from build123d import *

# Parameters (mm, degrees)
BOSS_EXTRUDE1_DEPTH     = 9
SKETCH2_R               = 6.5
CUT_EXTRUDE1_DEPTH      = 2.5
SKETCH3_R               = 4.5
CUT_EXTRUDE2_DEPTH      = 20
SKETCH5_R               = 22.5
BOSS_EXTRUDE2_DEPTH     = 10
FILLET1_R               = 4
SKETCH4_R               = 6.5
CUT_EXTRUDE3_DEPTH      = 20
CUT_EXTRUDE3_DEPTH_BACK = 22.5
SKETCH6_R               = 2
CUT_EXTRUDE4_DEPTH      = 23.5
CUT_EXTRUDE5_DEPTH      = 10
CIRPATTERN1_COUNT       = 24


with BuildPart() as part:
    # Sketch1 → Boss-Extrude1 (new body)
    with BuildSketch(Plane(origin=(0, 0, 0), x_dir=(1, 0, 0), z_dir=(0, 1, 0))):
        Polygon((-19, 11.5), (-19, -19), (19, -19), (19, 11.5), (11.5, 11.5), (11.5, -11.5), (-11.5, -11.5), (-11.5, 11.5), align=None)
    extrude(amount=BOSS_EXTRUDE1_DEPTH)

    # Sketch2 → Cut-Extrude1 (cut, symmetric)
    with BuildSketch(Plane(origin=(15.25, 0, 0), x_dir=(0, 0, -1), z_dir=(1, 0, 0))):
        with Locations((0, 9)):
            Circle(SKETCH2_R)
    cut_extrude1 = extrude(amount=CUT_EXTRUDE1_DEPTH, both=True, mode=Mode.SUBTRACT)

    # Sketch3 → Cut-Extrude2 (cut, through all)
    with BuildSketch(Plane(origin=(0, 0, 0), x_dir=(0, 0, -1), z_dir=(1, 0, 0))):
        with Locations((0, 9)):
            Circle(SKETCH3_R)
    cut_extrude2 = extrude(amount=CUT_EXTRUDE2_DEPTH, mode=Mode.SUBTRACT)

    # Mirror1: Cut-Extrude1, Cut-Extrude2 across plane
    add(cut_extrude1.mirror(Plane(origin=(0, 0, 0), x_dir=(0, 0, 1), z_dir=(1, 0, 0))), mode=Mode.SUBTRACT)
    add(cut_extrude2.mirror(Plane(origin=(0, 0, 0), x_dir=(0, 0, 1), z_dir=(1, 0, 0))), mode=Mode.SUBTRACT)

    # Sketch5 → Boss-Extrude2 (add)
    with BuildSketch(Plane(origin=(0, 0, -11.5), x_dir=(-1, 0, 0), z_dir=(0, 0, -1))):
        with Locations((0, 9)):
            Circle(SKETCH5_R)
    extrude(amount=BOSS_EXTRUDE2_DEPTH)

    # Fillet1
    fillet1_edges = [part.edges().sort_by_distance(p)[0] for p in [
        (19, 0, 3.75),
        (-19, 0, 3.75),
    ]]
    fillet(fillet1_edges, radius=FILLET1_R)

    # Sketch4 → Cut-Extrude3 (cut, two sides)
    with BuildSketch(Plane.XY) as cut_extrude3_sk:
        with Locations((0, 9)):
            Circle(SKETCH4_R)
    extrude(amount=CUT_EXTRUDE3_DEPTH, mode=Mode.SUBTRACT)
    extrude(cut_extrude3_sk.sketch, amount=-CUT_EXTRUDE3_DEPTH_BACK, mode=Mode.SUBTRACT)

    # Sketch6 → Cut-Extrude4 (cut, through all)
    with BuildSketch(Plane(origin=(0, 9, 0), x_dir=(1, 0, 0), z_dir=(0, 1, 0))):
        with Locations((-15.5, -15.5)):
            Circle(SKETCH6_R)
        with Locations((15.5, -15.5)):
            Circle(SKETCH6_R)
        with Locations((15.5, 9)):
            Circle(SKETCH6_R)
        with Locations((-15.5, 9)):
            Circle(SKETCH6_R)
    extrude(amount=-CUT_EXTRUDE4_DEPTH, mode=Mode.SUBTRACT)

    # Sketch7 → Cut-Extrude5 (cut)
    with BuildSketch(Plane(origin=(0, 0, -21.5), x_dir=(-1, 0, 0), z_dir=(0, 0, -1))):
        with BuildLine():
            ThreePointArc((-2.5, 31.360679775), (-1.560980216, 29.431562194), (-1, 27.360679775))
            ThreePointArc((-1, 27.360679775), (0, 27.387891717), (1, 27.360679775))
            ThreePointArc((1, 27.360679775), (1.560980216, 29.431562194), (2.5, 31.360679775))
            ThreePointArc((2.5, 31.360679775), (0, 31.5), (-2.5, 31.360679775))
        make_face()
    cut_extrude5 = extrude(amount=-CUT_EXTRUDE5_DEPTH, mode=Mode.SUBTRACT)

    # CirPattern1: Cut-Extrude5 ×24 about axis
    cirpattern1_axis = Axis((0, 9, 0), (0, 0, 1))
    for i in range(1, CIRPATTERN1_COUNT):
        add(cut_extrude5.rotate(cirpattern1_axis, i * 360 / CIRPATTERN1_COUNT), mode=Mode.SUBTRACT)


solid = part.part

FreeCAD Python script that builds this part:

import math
import FreeCAD as App
import Part
import Sketcher

V = App.Vector
Q = App.Units.Quantity


def edges_at(feature, points):
    """Names of the edges that pass closest to the given points."""
    edges = feature.Shape.Edges
    near = lambda p: min(range(len(edges)), key=lambda i: edges[i].distToShape(Part.Vertex(*p))[0])
    return sorted({f"Edge{near(p) + 1}" for p in points})

doc = App.newDocument("Part")
body = doc.addObject("PartDesign::Body", "Body")

# Sketch on XZ plane
sketch1 = body.newObject("Sketcher::SketchObject", "Sketch")
sketch1.AttachmentSupport = (doc.getObject("XZ_Plane"), [""])
sketch1.MapMode = "FlatFace"
sketch1.addGeometry([
    Part.LineSegment(V(-19, -12, 0), V(-19, 19, 0)),  # 0
    Part.LineSegment(V(-19, 19, 0), V(19, 19, 0)),  # 1
    Part.LineSegment(V(19, 19, 0), V(19, -12, 0)),  # 2
    Part.LineSegment(V(19, -12, 0), V(12, -12, 0)),  # 3
    Part.LineSegment(V(12, -12, 0), V(12, 12, 0)),  # 4
    Part.LineSegment(V(12, 12, 0), V(-12, 12, 0)),  # 5
    Part.LineSegment(V(-12, 12, 0), V(-12, -12, 0)),  # 6
    Part.LineSegment(V(-12, -12, 0), V(-19, -12, 0)),  # 7
], False)
sketch1.addConstraint([
    Sketcher.Constraint("Coincident", 0, 2, 1, 1),
    Sketcher.Constraint("Coincident", 1, 2, 2, 1),
    Sketcher.Constraint("Coincident", 2, 2, 3, 1),
    Sketcher.Constraint("Coincident", 3, 2, 4, 1),
    Sketcher.Constraint("Coincident", 4, 2, 5, 1),
    Sketcher.Constraint("Coincident", 5, 2, 6, 1),
    Sketcher.Constraint("Coincident", 6, 2, 7, 1),
    Sketcher.Constraint("Coincident", 7, 2, 0, 1),
    Sketcher.Constraint("Vertical", 0),
    Sketcher.Constraint("Horizontal", 1),
    Sketcher.Constraint("Vertical", 2),
    Sketcher.Constraint("Horizontal", 3),
    Sketcher.Constraint("Vertical", 4),
    Sketcher.Constraint("Horizontal", 5),
    Sketcher.Constraint("Vertical", 6),
    Sketcher.Constraint("Horizontal", 7),
    Sketcher.Constraint("Symmetric", 3, 2, 5, 2, -1, 1),
    Sketcher.Constraint("Symmetric", 2, 2, 7, 2, -2),
    Sketcher.Constraint("Equal", 5, 4),
    Sketcher.Constraint("DistanceX", 1, 1, 1, 2, Q("38 mm")),
    Sketcher.Constraint("DistanceX", 5, 2, 5, 1, Q("23 mm")),
    Sketcher.Constraint("DistanceY", 0, 1, 0, 2, Q("30.5 mm")),
])
pad1 = body.newObject("PartDesign::Pad", "Pad")
pad1.Profile = sketch1
pad1.Length = 9
pad1.Reversed = True

# Sketch on YZ plane
sketch2 = body.newObject("Sketcher::SketchObject", "Sketch001")
sketch2.AttachmentSupport = (doc.getObject("YZ_Plane"), [""])
sketch2.MapMode = "FlatFace"
sketch2.AttachmentOffset = App.Placement(V(0, 0, 15.25), App.Rotation())
sketch2.addGeometry(Part.Circle(V(9, 0, 0), V(0, 0, 1), 6), False)
sketch2.addConstraint([
    Sketcher.Constraint("PointOnObject", 0, 3, -1),
    Sketcher.Constraint("Diameter", 0, Q("13 mm")),
    Sketcher.Constraint("DistanceX", -1, 1, 0, 3, Q("9 mm")),
])
pocket1 = body.newObject("PartDesign::Pocket", "Pocket")
pocket1.Profile = sketch2
pocket1.Length = 5
pocket1.Midplane = True

# Sketch on YZ plane
sketch3 = body.newObject("Sketcher::SketchObject", "Sketch002")
sketch3.AttachmentSupport = (doc.getObject("YZ_Plane"), [""])
sketch3.MapMode = "FlatFace"
sketch3.addGeometry(Part.Circle(V(9, 0, 0), V(0, 0, 1), 4.5), False)
sketch3.addConstraint([
    Sketcher.Constraint("PointOnObject", 0, 3, -1),
    Sketcher.Constraint("Diameter", 0, Q("9 mm")),
    Sketcher.Constraint("DistanceX", -1, 1, 0, 3, Q("9 mm")),
])
pocket2 = body.newObject("PartDesign::Pocket", "Pocket001")
pocket2.Profile = sketch3
pocket2.Type = "ThroughAll"
pocket2.Reversed = True
doc.recompute()

mirrored = body.newObject("PartDesign::Mirrored", "Mirrored")
mirrored.Originals = [pocket1, pocket2]
mirrored.MirrorPlane = (doc.getObject("YZ_Plane"), [""])
body.Tip = mirrored

# Sketch on XY plane
sketch4 = body.newObject("Sketcher::SketchObject", "Sketch003")
sketch4.AttachmentSupport = (doc.getObject("XY_Plane"), [""])
sketch4.MapMode = "FlatFace"
sketch4.AttachmentOffset = App.Placement(V(0, 0, -11.5), App.Rotation())
sketch4.addGeometry(Part.Circle(V(0, 9, 0), V(0, 0, 1), 22), False)
sketch4.addConstraint([
    Sketcher.Constraint("PointOnObject", 0, 3, -2),
    Sketcher.Constraint("Diameter", 0, Q("45 mm")),
    Sketcher.Constraint("DistanceY", -1, 1, 0, 3, Q("9 mm")),
])
pad2 = body.newObject("PartDesign::Pad", "Pad001")
pad2.Profile = sketch4
pad2.Length = 10
pad2.Reversed = True
doc.recompute()

fillet = body.newObject("PartDesign::Fillet", "Fillet")
fillet.Base = (pad2, edges_at(pad2, [(19, 0, 3.75), (-19, 0, 3.75)]))
fillet.Radius = 4

# Sketch on XY plane
sketch5 = body.newObject("Sketcher::SketchObject", "Sketch004")
sketch5.AttachmentSupport = (doc.getObject("XY_Plane"), [""])
sketch5.MapMode = "FlatFace"
sketch5.addGeometry(Part.Circle(V(0, 9, 0), V(0, 0, 1), 6), False)
sketch5.addConstraint([
    Sketcher.Constraint("PointOnObject", 0, 3, -2),
    Sketcher.Constraint("Diameter", 0, Q("13 mm")),
    Sketcher.Constraint("DistanceY", -1, 1, 0, 3, Q("9 mm")),
])
pocket3 = body.newObject("PartDesign::Pocket", "Pocket002")
pocket3.Profile = sketch5
pocket3.Type = "ThroughAll"
pocket3.Midplane = True

# Sketch on XZ plane
sketch6 = body.newObject("Sketcher::SketchObject", "Sketch005")
sketch6.AttachmentSupport = (doc.getObject("XZ_Plane"), [""])
sketch6.MapMode = "FlatFace"
sketch6.AttachmentOffset = App.Placement(V(0, 0, -9), App.Rotation())
sketch6.addGeometry([
    Part.Circle(V(-15.5, 15.5, 0), V(0, 0, 1), 2),
    Part.Circle(V(15.5, 15.5, 0), V(0, 0, 1), 2),
    Part.Circle(V(15.5, -9, 0), V(0, 0, 1), 2),
    Part.Circle(V(-15.5, -9, 0), V(0, 0, 1), 2),
], False)
sketch6.addConstraint([
    Sketcher.Constraint("Equal", 0, 1),
    Sketcher.Constraint("Equal", 1, 2),
    Sketcher.Constraint("Equal", 2, 3),
    Sketcher.Constraint("Symmetric", 0, 3, 1, 3, -2),
    Sketcher.Constraint("Symmetric", 2, 3, 3, 3, -2),
    Sketcher.Constraint("Vertical", 1, 3, 2, 3),
    Sketcher.Constraint("Diameter", 0, Q("4 mm")),
    Sketcher.Constraint("DistanceY", 2, 3, -1, 1, Q("9 mm")),
    Sketcher.Constraint("DistanceX", 0, 3, 1, 3, Q("31 mm")),
    Sketcher.Constraint("DistanceY", -1, 1, 0, 3, Q("15.5 mm")),
])
pocket4 = body.newObject("PartDesign::Pocket", "Pocket003")
pocket4.Profile = sketch6
pocket4.Type = "ThroughAll"
pocket4.Reversed = True

# Sketch on XY plane
sketch7 = body.newObject("Sketcher::SketchObject", "Sketch006")
sketch7.AttachmentSupport = (doc.getObject("XY_Plane"), [""])
sketch7.MapMode = "FlatFace"
sketch7.AttachmentOffset = App.Placement(V(0, 0, -21.5), App.Rotation())
sketch7.addGeometry([
    Part.ArcOfCircle(Part.Circle(V(12.2, 25.4, 0), V(0, 0, 1), 11.4), math.radians(149), math.radians(170)),
    Part.ArcOfCircle(Part.Circle(V(0, 9, 0), V(0, 0, 1), 18.4), math.radians(86.88), math.radians(93.12)),
    Part.ArcOfCircle(Part.Circle(V(-12.2, 25.4, 0), V(0, 0, 1), 11.4), math.radians(10), math.radians(31)),
    Part.ArcOfCircle(Part.Circle(V(0, 9, 0), V(0, 0, 1), 22.5), math.radians(83.62), math.radians(96.38)),
], False)
sketch7.addConstraint([
    Sketcher.Constraint("Coincident", 0, 2, 1, 1),
    Sketcher.Constraint("Coincident", 1, 2, 2, 1),
    Sketcher.Constraint("Coincident", 2, 2, 3, 2),
    Sketcher.Constraint("Coincident", 3, 1, 0, 1),
    Sketcher.Constraint("Coincident", 3, 3, 1, 3),
    Sketcher.Constraint("Equal", 0, 2),
    Sketcher.Constraint("Symmetric", 0, 3, 2, 3, -2),
    Sketcher.Constraint("PointOnObject", 1, 3, -2),
    Sketcher.Constraint("Radius", 3, Q("22.5 mm")),
    Sketcher.Constraint("DistanceY", -1, 1, 1, 3, Q("9 mm")),
    Sketcher.Constraint("DistanceX", -1, 1, 0, 2, Q("1 mm")),
    Sketcher.Constraint("DistanceY", 1, 2, 2, 2, Q("4 mm")),
    Sketcher.Constraint("DistanceX", 2, 2, 3, 1, Q("5 mm")),
    Sketcher.Constraint("Radius", 0, Q("11.401346 mm")),
])
pocket5 = body.newObject("PartDesign::Pocket", "Pocket004")
pocket5.Profile = sketch7
pocket5.Length = 10
pocket5.Reversed = True
doc.recompute()

datumline = body.newObject("PartDesign::Line", "DatumLine")
datumline.Placement = App.Placement(V(0, 9, 0), App.Rotation(V(0, 0, 1), V(0, 0, 1)))
polarpattern = body.newObject("PartDesign::PolarPattern", "PolarPattern")
polarpattern.Originals = [pocket5]
polarpattern.Axis = (datumline, [""])
polarpattern.Angle = 360
polarpattern.Occurrences = 24
body.Tip = polarpattern

doc.recompute()
